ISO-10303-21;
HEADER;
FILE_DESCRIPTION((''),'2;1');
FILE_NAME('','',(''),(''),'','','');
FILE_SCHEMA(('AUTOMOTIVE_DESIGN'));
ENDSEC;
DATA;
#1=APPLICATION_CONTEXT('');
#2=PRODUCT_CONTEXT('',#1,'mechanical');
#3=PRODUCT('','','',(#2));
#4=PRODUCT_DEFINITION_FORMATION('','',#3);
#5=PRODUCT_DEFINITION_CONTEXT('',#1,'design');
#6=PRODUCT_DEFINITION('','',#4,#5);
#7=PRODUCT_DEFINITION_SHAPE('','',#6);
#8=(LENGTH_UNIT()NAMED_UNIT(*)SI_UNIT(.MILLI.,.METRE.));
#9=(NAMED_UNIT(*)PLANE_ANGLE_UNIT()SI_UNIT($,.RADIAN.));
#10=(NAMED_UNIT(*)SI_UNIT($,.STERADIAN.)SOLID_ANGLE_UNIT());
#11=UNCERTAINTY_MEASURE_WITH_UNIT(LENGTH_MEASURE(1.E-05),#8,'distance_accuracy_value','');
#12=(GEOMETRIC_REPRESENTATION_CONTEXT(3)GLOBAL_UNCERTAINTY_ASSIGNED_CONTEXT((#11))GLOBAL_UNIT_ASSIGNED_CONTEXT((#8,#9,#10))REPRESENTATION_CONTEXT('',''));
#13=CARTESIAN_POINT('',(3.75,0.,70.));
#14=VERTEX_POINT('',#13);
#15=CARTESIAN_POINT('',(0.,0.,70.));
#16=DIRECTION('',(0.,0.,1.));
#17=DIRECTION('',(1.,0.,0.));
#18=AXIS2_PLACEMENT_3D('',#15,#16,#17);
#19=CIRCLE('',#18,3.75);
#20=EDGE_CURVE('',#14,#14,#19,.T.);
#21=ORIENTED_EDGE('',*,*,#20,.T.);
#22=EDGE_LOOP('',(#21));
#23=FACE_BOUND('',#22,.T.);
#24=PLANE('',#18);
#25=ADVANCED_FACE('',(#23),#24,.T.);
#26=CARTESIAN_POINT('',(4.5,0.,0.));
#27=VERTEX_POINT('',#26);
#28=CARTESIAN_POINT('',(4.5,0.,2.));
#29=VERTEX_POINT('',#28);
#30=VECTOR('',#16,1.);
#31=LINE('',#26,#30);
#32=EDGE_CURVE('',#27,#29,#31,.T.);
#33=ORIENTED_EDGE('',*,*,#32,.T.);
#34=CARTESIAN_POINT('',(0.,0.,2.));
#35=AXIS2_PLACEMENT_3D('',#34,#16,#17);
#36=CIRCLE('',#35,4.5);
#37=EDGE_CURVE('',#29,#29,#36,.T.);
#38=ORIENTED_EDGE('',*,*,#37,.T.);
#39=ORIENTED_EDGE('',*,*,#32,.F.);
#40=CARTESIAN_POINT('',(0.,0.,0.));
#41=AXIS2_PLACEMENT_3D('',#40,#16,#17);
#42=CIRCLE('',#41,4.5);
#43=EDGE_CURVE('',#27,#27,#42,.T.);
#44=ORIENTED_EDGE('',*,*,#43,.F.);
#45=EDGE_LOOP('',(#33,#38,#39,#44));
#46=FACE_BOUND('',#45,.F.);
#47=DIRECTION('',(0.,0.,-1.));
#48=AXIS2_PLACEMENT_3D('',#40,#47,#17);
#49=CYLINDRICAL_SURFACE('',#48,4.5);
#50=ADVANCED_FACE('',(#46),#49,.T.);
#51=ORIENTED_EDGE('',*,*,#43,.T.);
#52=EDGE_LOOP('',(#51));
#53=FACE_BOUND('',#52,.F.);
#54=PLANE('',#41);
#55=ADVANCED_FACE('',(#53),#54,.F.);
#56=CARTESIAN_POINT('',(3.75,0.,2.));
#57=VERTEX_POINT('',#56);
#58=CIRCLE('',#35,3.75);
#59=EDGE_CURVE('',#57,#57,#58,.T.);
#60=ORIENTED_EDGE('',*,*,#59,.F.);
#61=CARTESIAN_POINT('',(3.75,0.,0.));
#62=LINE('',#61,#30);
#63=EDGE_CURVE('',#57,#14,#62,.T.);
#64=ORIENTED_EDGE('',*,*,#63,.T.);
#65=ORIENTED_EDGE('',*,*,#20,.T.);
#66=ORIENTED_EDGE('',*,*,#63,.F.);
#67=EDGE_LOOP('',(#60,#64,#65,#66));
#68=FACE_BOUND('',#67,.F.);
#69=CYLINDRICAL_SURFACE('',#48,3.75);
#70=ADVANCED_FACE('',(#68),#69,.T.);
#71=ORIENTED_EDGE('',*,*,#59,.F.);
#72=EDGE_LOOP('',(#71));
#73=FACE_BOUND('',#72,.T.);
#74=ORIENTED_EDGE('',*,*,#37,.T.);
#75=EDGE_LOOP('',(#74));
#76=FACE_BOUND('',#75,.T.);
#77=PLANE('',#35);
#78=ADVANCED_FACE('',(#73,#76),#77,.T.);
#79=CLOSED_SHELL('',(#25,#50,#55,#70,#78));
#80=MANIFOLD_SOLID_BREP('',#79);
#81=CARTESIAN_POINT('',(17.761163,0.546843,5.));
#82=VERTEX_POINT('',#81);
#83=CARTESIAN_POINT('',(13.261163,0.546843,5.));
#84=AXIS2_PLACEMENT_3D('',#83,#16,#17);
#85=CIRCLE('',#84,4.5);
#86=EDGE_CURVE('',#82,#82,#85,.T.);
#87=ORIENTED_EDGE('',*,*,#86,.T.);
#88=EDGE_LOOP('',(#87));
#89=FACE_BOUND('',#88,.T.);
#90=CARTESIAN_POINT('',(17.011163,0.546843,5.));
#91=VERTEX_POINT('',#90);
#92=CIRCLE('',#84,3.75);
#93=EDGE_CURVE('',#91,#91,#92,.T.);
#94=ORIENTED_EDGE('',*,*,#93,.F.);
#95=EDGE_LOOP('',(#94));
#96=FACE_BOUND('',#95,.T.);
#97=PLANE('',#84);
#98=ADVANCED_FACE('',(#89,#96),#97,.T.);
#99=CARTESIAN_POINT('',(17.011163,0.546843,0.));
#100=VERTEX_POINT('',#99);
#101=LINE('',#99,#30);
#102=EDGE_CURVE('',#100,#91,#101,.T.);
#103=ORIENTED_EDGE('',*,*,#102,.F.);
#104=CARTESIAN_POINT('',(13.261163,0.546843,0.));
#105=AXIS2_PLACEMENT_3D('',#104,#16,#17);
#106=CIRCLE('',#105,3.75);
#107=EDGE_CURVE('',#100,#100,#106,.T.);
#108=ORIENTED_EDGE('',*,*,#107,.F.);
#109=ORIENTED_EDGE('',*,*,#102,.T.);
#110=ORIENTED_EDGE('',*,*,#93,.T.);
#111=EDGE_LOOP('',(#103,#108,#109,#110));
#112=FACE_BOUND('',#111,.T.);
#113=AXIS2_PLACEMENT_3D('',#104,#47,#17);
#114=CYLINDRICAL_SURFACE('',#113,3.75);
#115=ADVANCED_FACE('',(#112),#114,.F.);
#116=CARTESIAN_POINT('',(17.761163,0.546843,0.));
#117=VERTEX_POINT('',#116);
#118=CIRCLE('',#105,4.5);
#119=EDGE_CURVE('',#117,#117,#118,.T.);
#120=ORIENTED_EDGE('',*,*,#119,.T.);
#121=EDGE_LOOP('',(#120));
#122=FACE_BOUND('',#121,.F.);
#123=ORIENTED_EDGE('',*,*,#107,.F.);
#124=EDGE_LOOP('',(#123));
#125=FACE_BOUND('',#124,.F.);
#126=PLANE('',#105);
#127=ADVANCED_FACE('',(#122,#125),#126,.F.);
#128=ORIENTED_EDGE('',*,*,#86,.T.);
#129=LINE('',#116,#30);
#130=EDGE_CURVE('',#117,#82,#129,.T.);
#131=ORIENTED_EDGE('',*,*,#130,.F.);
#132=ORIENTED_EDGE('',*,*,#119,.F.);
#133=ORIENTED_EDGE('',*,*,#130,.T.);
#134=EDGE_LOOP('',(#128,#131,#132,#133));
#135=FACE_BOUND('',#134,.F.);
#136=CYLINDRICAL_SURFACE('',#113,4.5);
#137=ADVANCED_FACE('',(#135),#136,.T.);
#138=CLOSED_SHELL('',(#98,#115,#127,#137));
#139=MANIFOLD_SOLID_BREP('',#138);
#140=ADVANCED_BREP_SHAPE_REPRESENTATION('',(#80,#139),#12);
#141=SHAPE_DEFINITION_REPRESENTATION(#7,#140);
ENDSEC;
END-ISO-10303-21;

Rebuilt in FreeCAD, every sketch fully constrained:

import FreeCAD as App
import Part
import Sketcher

V = App.Vector

doc = App.newDocument("Part")
body = doc.addObject("PartDesign::Body", "Body")

sketch1 = body.newObject("Sketcher::SketchObject", "Sketch")
sketch1.AttachmentSupport = (doc.getObject("XY_Plane"), [""])
sketch1.MapMode = "FlatFace"
sketch1.addGeometry(Part.Circle(V(0, 0, 0), V(0, 0, 1), 3.8), False)
sketch1.addConstraint([
    Sketcher.Constraint("Coincident", 0, 3, -1, 1),
    Sketcher.Constraint("Diameter", 0, 7.5),
])
pad1 = body.newObject("PartDesign::Pad", "Pad")
pad1.Profile = sketch1
pad1.Length = 70

sketch2 = body.newObject("Sketcher::SketchObject", "Sketch001")
sketch2.AttachmentSupport = (doc.getObject("XY_Plane"), [""])
sketch2.MapMode = "FlatFace"
sketch2.addGeometry([
    Part.Circle(V(0, 0, 0), V(0, 0, 1), 4.5),
    Part.Circle(V(0, 0, 0), V(0, 0, 1), 3.8),
], False)
sketch2.addConstraint([
    Sketcher.Constraint("Coincident", 0, 3, -1, 1),
    Sketcher.Constraint("Coincident", 1, 3, -1, 1),
    Sketcher.Constraint("Diameter", 0, 9.0),
    Sketcher.Constraint("Diameter", 1, 7.5),
])
pad2 = body.newObject("PartDesign::Pad", "Pad001")
pad2.Profile = sketch2
pad2.Length = 2
body2 = doc.addObject("PartDesign::Body", "Body001")

sketch3 = body2.newObject("Sketcher::SketchObject", "Sketch002")
sketch3.AttachmentSupport = (doc.getObject("XY_Plane001"), [""])
sketch3.MapMode = "FlatFace"
sketch3.addGeometry([
    Part.Circle(V(13.3, 0.5, 0), V(0, 0, 1), 4.5),
    Part.Circle(V(13.3, 0.5, 0), V(0, 0, 1), 3.8),
], False)
sketch3.addConstraint([
    Sketcher.Constraint("Coincident", 1, 3, 0, 3),
    Sketcher.Constraint("Diameter", 0, 9.0),
    Sketcher.Constraint("Diameter", 1, 7.5),
    Sketcher.Constraint("DistanceX", -1, 1, 0, 3, 13.261163),
    Sketcher.Constraint("DistanceY", -1, 1, 0, 3, 0.546843),
])
pad3 = body2.newObject("PartDesign::Pad", "Pad002")
pad3.Profile = sketch3
pad3.Length = 5

doc.recompute()
